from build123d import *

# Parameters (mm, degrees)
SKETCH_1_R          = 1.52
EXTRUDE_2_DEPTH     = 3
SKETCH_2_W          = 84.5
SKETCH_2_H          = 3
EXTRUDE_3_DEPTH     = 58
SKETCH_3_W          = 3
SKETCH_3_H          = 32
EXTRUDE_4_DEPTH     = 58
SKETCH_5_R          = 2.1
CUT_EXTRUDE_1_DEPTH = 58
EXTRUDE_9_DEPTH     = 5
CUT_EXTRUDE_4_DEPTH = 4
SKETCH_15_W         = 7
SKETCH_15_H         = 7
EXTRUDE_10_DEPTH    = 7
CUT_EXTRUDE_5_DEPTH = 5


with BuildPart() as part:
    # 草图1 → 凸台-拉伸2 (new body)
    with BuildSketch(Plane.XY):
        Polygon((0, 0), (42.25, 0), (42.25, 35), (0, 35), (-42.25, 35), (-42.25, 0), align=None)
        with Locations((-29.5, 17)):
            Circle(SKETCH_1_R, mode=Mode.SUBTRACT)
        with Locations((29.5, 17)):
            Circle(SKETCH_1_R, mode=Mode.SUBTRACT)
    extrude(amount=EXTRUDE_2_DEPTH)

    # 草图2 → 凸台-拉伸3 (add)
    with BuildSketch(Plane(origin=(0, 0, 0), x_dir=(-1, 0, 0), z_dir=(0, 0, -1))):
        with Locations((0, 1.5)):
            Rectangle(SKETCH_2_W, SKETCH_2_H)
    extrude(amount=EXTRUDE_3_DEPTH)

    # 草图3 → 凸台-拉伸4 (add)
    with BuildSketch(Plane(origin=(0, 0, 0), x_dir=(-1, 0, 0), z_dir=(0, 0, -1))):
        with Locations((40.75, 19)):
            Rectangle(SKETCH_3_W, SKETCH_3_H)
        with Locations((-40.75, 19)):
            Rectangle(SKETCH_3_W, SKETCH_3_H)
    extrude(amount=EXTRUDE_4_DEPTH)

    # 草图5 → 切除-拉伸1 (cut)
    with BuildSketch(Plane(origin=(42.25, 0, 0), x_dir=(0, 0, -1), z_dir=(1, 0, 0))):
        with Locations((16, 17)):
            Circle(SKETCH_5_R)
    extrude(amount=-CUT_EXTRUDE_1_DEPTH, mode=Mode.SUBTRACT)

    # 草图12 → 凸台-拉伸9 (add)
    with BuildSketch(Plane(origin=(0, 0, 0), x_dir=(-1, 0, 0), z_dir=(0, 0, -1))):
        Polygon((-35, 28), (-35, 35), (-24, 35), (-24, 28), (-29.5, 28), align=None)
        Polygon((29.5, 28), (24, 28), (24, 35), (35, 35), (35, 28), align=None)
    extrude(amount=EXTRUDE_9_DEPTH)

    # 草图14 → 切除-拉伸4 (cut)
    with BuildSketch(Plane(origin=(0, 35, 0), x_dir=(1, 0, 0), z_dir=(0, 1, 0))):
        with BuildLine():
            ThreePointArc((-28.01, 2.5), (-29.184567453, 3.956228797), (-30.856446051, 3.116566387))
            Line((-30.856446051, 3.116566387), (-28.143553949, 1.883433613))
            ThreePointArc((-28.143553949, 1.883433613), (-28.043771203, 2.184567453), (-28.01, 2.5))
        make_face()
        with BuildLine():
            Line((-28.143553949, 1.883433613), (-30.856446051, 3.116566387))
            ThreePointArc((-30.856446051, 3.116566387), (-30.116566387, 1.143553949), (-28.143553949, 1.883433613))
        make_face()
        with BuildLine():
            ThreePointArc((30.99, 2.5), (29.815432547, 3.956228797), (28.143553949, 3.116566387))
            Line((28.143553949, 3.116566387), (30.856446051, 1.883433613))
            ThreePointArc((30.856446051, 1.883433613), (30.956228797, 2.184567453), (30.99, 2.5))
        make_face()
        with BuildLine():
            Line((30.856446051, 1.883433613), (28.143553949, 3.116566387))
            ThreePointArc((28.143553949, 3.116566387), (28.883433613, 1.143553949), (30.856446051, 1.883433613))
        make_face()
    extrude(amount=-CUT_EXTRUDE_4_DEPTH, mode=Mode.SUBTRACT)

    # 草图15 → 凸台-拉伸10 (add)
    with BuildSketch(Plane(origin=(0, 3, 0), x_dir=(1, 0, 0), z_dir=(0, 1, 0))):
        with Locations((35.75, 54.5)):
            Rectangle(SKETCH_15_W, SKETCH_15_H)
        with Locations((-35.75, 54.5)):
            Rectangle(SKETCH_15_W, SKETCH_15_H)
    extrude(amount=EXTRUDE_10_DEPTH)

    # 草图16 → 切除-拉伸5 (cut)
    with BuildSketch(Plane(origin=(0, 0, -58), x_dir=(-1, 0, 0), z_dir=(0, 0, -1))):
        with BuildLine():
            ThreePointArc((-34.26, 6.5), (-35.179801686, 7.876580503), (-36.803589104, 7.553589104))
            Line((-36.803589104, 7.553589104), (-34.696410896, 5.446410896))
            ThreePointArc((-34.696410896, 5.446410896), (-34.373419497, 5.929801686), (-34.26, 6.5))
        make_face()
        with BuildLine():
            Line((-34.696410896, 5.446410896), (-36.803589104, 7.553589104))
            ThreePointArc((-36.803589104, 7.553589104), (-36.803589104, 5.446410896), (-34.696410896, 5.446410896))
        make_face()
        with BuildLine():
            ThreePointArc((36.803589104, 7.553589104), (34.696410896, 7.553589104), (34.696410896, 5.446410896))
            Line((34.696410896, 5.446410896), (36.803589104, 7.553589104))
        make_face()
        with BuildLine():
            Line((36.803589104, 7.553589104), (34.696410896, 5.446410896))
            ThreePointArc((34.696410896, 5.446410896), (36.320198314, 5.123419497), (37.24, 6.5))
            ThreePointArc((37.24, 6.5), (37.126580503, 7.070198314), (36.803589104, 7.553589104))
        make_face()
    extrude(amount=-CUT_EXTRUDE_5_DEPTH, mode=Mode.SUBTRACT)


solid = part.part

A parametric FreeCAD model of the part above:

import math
import FreeCAD as App
import Part
import Sketcher


def add_polygon(sketch, points):
    """Adds a closed chain of lines whose ends are joined by coincident constraints."""
    first, n = sketch.GeometryCount, len(points)
    for a, b in zip(points, points[1:] + points[:1]):
        sketch.addGeometry(Part.LineSegment(App.Vector(*a, 0), App.Vector(*b, 0)), False)
    for i in range(n):
        sketch.addConstraint(Sketcher.Constraint("Coincident", first + i, 2, first + (i + 1) % n, 1))

doc = App.newDocument("Part")
body = doc.addObject("PartDesign::Body", "Body")

sketch1 = body.newObject("Sketcher::SketchObject", "Sketch")
sketch1.AttachmentSupport = (doc.getObject("XY_Plane"), [""])
sketch1.MapMode = "FlatFace"
add_polygon(sketch1, [(42.25, 0), (42.25, 35), (-42.25, 35), (-42.25, 0)])
sketch1.addGeometry(Part.Circle(App.Vector(-29.5, 17, 0), App.Vector(0, 0, 1), 1.52), False)
sketch1.addGeometry(Part.Circle(App.Vector(29.5, 17, 0), App.Vector(0, 0, 1), 1.52), False)
sketch1.addConstraint([
    Sketcher.Constraint("Vertical", 0),
    Sketcher.Constraint("Horizontal", 1),
    Sketcher.Constraint("Vertical", 2),
    Sketcher.Constraint("Horizontal", 3),
    Sketcher.Constraint("Equal", 4, 5),
    Sketcher.Constraint("Symmetric", 2, 2, 3, 2, -1, 1),
    Sketcher.Constraint("Symmetric", 4, 3, 5, 3, -2),
    Sketcher.Constraint("Diameter", 4, 3.04),
    Sketcher.Constraint("DistanceY", 0, 1, 0, 2, 35.0),
    Sketcher.Constraint("DistanceX", 1, 2, 1, 1, 84.5),
    Sketcher.Constraint("DistanceY", -1, 1, 4, 3, 17.0),
    Sketcher.Constraint("DistanceX", 4, 3, 5, 3, 59.0),
])
pad1 = body.newObject("PartDesign::Pad", "Pad")
pad1.Profile = sketch1
pad1.Length = 3

sketch2 = body.newObject("Sketcher::SketchObject", "Sketch001")
sketch2.AttachmentSupport = (doc.getObject("XY_Plane"), [""])
sketch2.MapMode = "FlatFace"
add_polygon(sketch2, [(42.25, 3), (42.25, 0), (-42.25, 0), (-42.25, 3)])
sketch2.addConstraint([
    Sketcher.Constraint("Vertical", 0),
    Sketcher.Constraint("Horizontal", 1),
    Sketcher.Constraint("Vertical", 2),
    Sketcher.Constraint("Horizontal", 3),
    Sketcher.Constraint("Symmetric", 0, 2, 1, 2, -1, 1),
    Sketcher.Constraint("DistanceY", 0, 2, 0, 1, 3.0),
    Sketcher.Constraint("DistanceX", 1, 2, 1, 1, 84.5),
])
pad2 = body.newObject("PartDesign::Pad", "Pad001")
pad2.Profile = sketch2
pad2.Length = 58
pad2.Reversed = True

sketch3 = body.newObject("Sketcher::SketchObject", "Sketch002")
sketch3.AttachmentSupport = (doc.getObject("XY_Plane"), [""])
sketch3.MapMode = "FlatFace"
add_polygon(sketch3, [(-39.25, 35), (-39.25, 3), (-42.25, 3), (-42.25, 35)])
add_polygon(sketch3, [(42.25, 35), (42.25, 3), (39.25, 3), (39.25, 35)])
sketch3.addConstraint([
    Sketcher.Constraint("Vertical", 0),
    Sketcher.Constraint("Horizontal", 1),
    Sketcher.Constraint("Vertical", 2),
    Sketcher.Constraint("Horizontal", 3),
    Sketcher.Constraint("Vertical", 4),
    Sketcher.Constraint("Horizontal", 5),
    Sketcher.Constraint("Vertical", 6),
    Sketcher.Constraint("Horizontal", 7),
    Sketcher.Constraint("Symmetric", 1, 2, 4, 2, -2),
    Sketcher.Constraint("Symmetric", 3, 2, 6, 2, -2),
    Sketcher.Constraint("DistanceX", 1, 2, 1, 1, 3.0),
    Sketcher.Constraint("DistanceY", 0, 2, 0, 1, 32.0),
    Sketcher.Constraint("DistanceY", -1, 1, 0, 2, 3.0),
    Sketcher.Constraint("DistanceX", 0, 2, 4, 2, 81.5),
])
pad3 = body.newObject("PartDesign::Pad", "Pad002")
pad3.Profile = sketch3
pad3.Length = 58
pad3.Reversed = True

sketch4 = body.newObject("Sketcher::SketchObject", "Sketch003")
sketch4.AttachmentSupport = (doc.getObject("YZ_Plane"), [""])
sketch4.MapMode = "FlatFace"
sketch4.AttachmentOffset = App.Placement(App.Vector(0, 0, 42.25), App.Rotation())
sketch4.addGeometry(Part.Circle(App.Vector(17, -16, 0), App.Vector(0, 0, 1), 2.1), False)
sketch4.addConstraint([
    Sketcher.Constraint("Diameter", 0, 4.2),
    Sketcher.Constraint("DistanceX", -1, 1, 0, 3, 17.0),
    Sketcher.Constraint("DistanceY", 0, 3, -1, 1, 16.0),
])
pocket1 = body.newObject("PartDesign::Pocket", "Pocket")
pocket1.Profile = sketch4
pocket1.Length = 58

sketch5 = body.newObject("Sketcher::SketchObject", "Sketch004")
sketch5.AttachmentSupport = (doc.getObject("XY_Plane"), [""])
sketch5.MapMode = "FlatFace"
add_polygon(sketch5, [(35, 35), (35, 28), (24, 28), (24, 35)])
add_polygon(sketch5, [(-24, 28), (-35, 28), (-35, 35), (-24, 35)])
sketch5.addConstraint([
    Sketcher.Constraint("Vertical", 0),
    Sketcher.Constraint("Horizontal", 1),
    Sketcher.Constraint("Vertical", 2),
    Sketcher.Constraint("Horizontal", 3),
    Sketcher.Constraint("Horizontal", 4),
    Sketcher.Constraint("Vertical", 5),
    Sketcher.Constraint("Horizontal", 6),
    Sketcher.Constraint("Vertical", 7),
    Sketcher.Constraint("Symmetric", 0, 2, 4, 2, -2),
    Sketcher.Constraint("Symmetric", 2, 2, 6, 2, -2),
    Sketcher.Constraint("DistanceX", 1, 2, 1, 1, 11.0),
    Sketcher.Constraint("DistanceY", 0, 2, 0, 1, 7.0),
    Sketcher.Constraint("DistanceX", -1, 1, 0, 2, 35.0),
    Sketcher.Constraint("DistanceY", -1, 1, 0, 2, 28.0),
])
pad4 = body.newObject("PartDesign::Pad", "Pad003")
pad4.Profile = sketch5
pad4.Length = 5
pad4.Reversed = True

sketch6 = body.newObject("Sketcher::SketchObject", "Sketch005")
sketch6.AttachmentSupport = (doc.getObject("XZ_Plane"), [""])
sketch6.MapMode = "FlatFace"
sketch6.AttachmentOffset = App.Placement(App.Vector(0, 0, -35), App.Rotation())
sketch6.addGeometry([
    Part.ArcOfCircle(Part.Circle(App.Vector(-29.5, -2.5, 0), App.Vector(0, 0, 1), 1.49), math.radians(-155.556045), math.radians(0)),
    Part.ArcOfCircle(Part.Circle(App.Vector(-29.5, -2.5, 0), App.Vector(0, 0, 1), 1.49), math.radians(24.443955), math.radians(204.443955)),
    Part.ArcOfCircle(Part.Circle(App.Vector(-29.5, -2.5, 0), App.Vector(0, 0, 1), 1.49), math.radians(0), math.radians(24.443955)),
    Part.ArcOfCircle(Part.Circle(App.Vector(29.5, -2.5, 0), App.Vector(0, 0, 1), 1.49), math.radians(-155.556045), math.radians(0)),
    Part.ArcOfCircle(Part.Circle(App.Vector(29.5, -2.5, 0), App.Vector(0, 0, 1), 1.49), math.radians(24.443955), math.radians(204.443955)),
    Part.ArcOfCircle(Part.Circle(App.Vector(29.5, -2.5, 0), App.Vector(0, 0, 1), 1.49), math.radians(0), math.radians(24.443955)),
], False)
sketch6.addConstraint([
    Sketcher.Constraint("Tangent", 0, 1, 1, 2),
    Sketcher.Constraint("Tangent", 1, 1, 2, 2),
    Sketcher.Constraint("Tangent", 2, 1, 0, 2),
    Sketcher.Constraint("Tangent", 3, 1, 4, 2),
    Sketcher.Constraint("Tangent", 4, 1, 5, 2),
    Sketcher.Constraint("Tangent", 5, 1, 3, 2),
    Sketcher.Constraint("Equal", 2, 3),
    Sketcher.Constraint("Symmetric", 0, 3, 3, 3, -2),
    Sketcher.Constraint("Horizontal", 5, 3, 2, 1),
    Sketcher.Constraint("Horizontal", 0, 1, 3, 1),
    Sketcher.Constraint("Horizontal", 1, 1, 4, 1),
    Sketcher.Constraint("Horizontal", 2, 1, 5, 1),
    Sketcher.Constraint("Radius", 0, 1.49),
    Sketcher.Constraint("DistanceX", 2, 3, 3, 3, 59.0),
    Sketcher.Constraint("DistanceY", 0, 3, -1, 1, 2.5),
    Sketcher.Constraint("DistanceX", 0, 1, -1, 1, 30.856446),
    Sketcher.Constraint("DistanceX", 1, 1, -1, 1, 28.143554),
])
pocket2 = body.newObject("PartDesign::Pocket", "Pocket001")
pocket2.Profile = sketch6
pocket2.Length = 4
pocket2.Reversed = True

sketch7 = body.newObject("Sketcher::SketchObject", "Sketch006")
sketch7.AttachmentSupport = (doc.getObject("XZ_Plane"), [""])
sketch7.MapMode = "FlatFace"
sketch7.AttachmentOffset = App.Placement(App.Vector(0, 0, -3), App.Rotation())
add_polygon(sketch7, [(32.25, -58), (32.25, -51), (39.25, -51), (39.25, -58)])
add_polygon(sketch7, [(-39.25, -58), (-39.25, -51), (-32.25, -51), (-32.25, -58)])
sketch7.addConstraint([
    Sketcher.Constraint("Vertical", 0),
    Sketcher.Constraint("Horizontal", 1),
    Sketcher.Constraint("Vertical", 2),
    Sketcher.Constraint("Horizontal", 3),
    Sketcher.Constraint("Vertical", 4),
    Sketcher.Constraint("Horizontal", 5),
    Sketcher.Constraint("Vertical", 6),
    Sketcher.Constraint("Horizontal", 7),
    Sketcher.Constraint("Symmetric", 1, 2, 4, 2, -2),
    Sketcher.Constraint("Symmetric", 3, 2, 6, 2, -2),
    Sketcher.Constraint("Equal", 7, 0),
    Sketcher.Constraint("DistanceX", 1, 1, 1, 2, 7.0),
    Sketcher.Constraint("DistanceY", 0, 2, -1, 1, 51.0),
    Sketcher.Constraint("DistanceX", 4, 2, 0, 2, 71.5),
])
pad5 = body.newObject("PartDesign::Pad", "Pad004")
pad5.Profile = sketch7
pad5.Length = 7
pad5.Reversed = True

sketch8 = body.newObject("Sketcher::SketchObject", "Sketch007")
sketch8.AttachmentSupport = (doc.getObject("XY_Plane"), [""])
sketch8.MapMode = "FlatFace"
sketch8.AttachmentOffset = App.Placement(App.Vector(0, 0, -58), App.Rotation())
sketch8.addGeometry([
    Part.ArcOfCircle(Part.Circle(App.Vector(35.75, 6.5, 0), App.Vector(0, 0, 1), 1.49), math.radians(45), math.radians(180)),
    Part.ArcOfCircle(Part.Circle(App.Vector(35.75, 6.5, 0), App.Vector(0, 0, 1), 1.49), math.radians(-135), math.radians(45)),
    Part.ArcOfCircle(Part.Circle(App.Vector(35.75, 6.5, 0), App.Vector(0, 0, 1), 1.49), math.radians(-180), math.radians(-135)),
    Part.ArcOfCircle(Part.Circle(App.Vector(-35.75, 6.5, 0), App.Vector(0, 0, 1), 1.49), math.radians(-45), math.radians(135)),
    Part.ArcOfCircle(Part.Circle(App.Vector(-35.75, 6.5, 0), App.Vector(0, 0, 1), 1.49), math.radians(-180), math.radians(-45)),
    Part.ArcOfCircle(Part.Circle(App.Vector(-35.75, 6.5, 0), App.Vector(0, 0, 1), 1.49), math.radians(135), math.radians(180)),
], False)
sketch8.addConstraint([
    Sketcher.Constraint("Tangent", 0, 1, 1, 2),
    Sketcher.Constraint("Tangent", 1, 1, 2, 2),
    Sketcher.Constraint("Tangent", 2, 1, 0, 2),
    Sketcher.Constraint("Tangent", 3, 1, 4, 2),
    Sketcher.Constraint("Tangent", 4, 1, 5, 2),
    Sketcher.Constraint("Tangent", 5, 1, 3, 2),
    Sketcher.Constraint("Equal", 2, 3),
    Sketcher.Constraint("Symmetric", 0, 3, 3, 3, -2),
    Sketcher.Constraint("Horizontal", 5, 3, 2, 1),
    Sketcher.Constraint("Horizontal", 1, 1, 3, 1),
    Sketcher.Constraint("Horizontal", 2, 1, 4, 1),
    Sketcher.Constraint("Horizontal", 0, 1, 5, 1),
    Sketcher.Constraint("Radius", 0, 1.49),
    Sketcher.Constraint("DistanceY", -1, 1, 0, 3, 6.5),
    Sketcher.Constraint("DistanceX", 3, 3, 0, 3, 71.5),
    Sketcher.Constraint("DistanceX", -1, 1, 0, 1, 36.803589),
    Sketcher.Constraint("DistanceX", -1, 1, 1, 1, 34.696411),
])
pocket3 = body.newObject("PartDesign::Pocket", "Pocket002")
pocket3.Profile = sketch8
pocket3.Length = 5
pocket3.Reversed = True

doc.recompute()
